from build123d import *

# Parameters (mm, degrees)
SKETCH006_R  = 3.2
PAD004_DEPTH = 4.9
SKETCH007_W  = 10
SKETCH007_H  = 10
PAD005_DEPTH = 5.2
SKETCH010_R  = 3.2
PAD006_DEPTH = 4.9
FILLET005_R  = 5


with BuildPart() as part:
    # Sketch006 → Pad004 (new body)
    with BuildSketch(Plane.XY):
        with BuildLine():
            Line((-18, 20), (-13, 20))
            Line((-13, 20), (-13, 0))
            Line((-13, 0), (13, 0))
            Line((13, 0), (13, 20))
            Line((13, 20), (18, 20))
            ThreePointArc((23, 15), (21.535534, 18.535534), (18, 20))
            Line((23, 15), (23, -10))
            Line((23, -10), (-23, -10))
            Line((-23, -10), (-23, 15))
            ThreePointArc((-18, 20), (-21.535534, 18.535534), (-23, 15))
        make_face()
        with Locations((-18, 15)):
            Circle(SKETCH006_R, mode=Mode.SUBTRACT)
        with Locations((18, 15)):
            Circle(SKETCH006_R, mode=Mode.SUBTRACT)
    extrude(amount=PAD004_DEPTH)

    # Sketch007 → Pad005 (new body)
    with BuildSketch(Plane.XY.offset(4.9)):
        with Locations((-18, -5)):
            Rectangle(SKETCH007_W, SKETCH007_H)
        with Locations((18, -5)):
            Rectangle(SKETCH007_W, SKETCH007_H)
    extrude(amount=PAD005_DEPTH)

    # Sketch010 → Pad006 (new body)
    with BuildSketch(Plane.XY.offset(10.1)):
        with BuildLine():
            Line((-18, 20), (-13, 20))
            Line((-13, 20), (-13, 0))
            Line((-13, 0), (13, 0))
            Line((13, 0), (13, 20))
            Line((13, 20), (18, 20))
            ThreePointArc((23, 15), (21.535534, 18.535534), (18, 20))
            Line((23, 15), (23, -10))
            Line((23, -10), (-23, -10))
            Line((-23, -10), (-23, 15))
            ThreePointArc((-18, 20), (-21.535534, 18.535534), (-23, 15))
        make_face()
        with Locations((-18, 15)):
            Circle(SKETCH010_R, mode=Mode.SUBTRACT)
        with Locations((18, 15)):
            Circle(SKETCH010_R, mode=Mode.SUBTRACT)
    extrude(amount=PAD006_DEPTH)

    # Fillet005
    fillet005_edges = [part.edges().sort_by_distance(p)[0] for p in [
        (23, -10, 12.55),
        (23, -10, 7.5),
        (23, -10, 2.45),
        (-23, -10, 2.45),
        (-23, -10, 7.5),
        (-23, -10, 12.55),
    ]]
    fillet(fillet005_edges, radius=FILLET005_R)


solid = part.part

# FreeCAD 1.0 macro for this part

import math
import FreeCAD as App
import Part
import Sketcher
Q = App.Units.Quantity


def edges_at(feature, points):
    """Names of the edges that pass closest to the given points."""
    edges = feature.Shape.Edges
    near = lambda p: min(range(len(edges)), key=lambda i: edges[i].distToShape(Part.Vertex(*p))[0])
    return sorted({f"Edge{near(p) + 1}" for p in points})

doc = App.newDocument("Part")
params = doc.addObject("Spreadsheet::Sheet", "Params")
for row, (alias, value) in enumerate([
    ("sketch1_radius", "5 mm"),
    ("sketch1_diameter", "6.4 mm"),
    ("sketch1_width", "5 mm"),
    ("sketch1_width2", "46 mm"),
    ("sketch1_height", "25 mm"),
    ("pad1_length", "4.9 mm"),
    ("sketch2_width", "10 mm"),
    ("pad2_length", "5.2 mm"),
    ("sketch3_radius", "5 mm"),
    ("sketch3_diameter", "6.4 mm"),
    ("sketch3_width", "5 mm"),
    ("sketch3_width2", "46 mm"),
    ("sketch3_height", "25 mm"),
    ("pad3_length", "4.9 mm"),
    ("fillet_radius", "5 mm"),
], start=1):
    params.set(f"A{row}", alias)
    params.set(f"B{row}", "=" + value)
    params.setAlias(f"B{row}", alias)

body = doc.addObject("PartDesign::Body", "Body")

# Sketch on XY plane
sketch1 = body.newObject("Sketcher::SketchObject", "Sketch")
sketch1.AttachmentSupport = (doc.getObject("XY_Plane"), [""])
sketch1.MapMode = "FlatFace"
sketch1.addGeometry(Part.LineSegment(App.Vector(-13, 20, 0), App.Vector(-18, 20, 0)), False)
sketch1.addGeometry(Part.ArcOfCircle(Part.Circle(App.Vector(-18, 15, 0), App.Vector(0, 0, 1), 5), math.radians(90), math.radians(180)), False)
sketch1.addGeometry(Part.LineSegment(App.Vector(-23, 15, 0), App.Vector(-23, -10, 0)), False)
sketch1.addGeometry(Part.LineSegment(App.Vector(-23, -10, 0), App.Vector(23, -10, 0)), False)
sketch1.addGeometry(Part.LineSegment(App.Vector(23, -10, 0), App.Vector(23, 15, 0)), False)
sketch1.addGeometry(Part.ArcOfCircle(Part.Circle(App.Vector(18, 15, 0), App.Vector(0, 0, 1), 5), math.radians(0), math.radians(90)), False)
sketch1.addGeometry(Part.LineSegment(App.Vector(18, 20, 0), App.Vector(13, 20, 0)), False)
sketch1.addGeometry(Part.LineSegment(App.Vector(13, 20, 0), App.Vector(13, 0, 0)), False)
sketch1.addGeometry(Part.LineSegment(App.Vector(13, 0, 0), App.Vector(-13, 0, 0)), False)
sketch1.addGeometry(Part.LineSegment(App.Vector(-13, 0, 0), App.Vector(-13, 20, 0)), False)
sketch1.addGeometry(Part.Circle(App.Vector(18, 15, 0), App.Vector(0, 0, 1), 3.2), False)
sketch1.addGeometry(Part.Circle(App.Vector(-18, 15, 0), App.Vector(0, 0, 1), 3.2), False)
sketch1.addConstraint(Sketcher.Constraint("Tangent", 0, 2, 1, 1))
sketch1.addConstraint(Sketcher.Constraint("Tangent", 1, 2, 2, 1))
sketch1.addConstraint(Sketcher.Constraint("Coincident", 2, 2, 3, 1))
sketch1.addConstraint(Sketcher.Constraint("Coincident", 3, 2, 4, 1))
sketch1.addConstraint(Sketcher.Constraint("Tangent", 4, 2, 5, 1))
sketch1.addConstraint(Sketcher.Constraint("Tangent", 5, 2, 6, 1))
sketch1.addConstraint(Sketcher.Constraint("Coincident", 6, 2, 7, 1))
sketch1.addConstraint(Sketcher.Constraint("Coincident", 7, 2, 8, 1))
sketch1.addConstraint(Sketcher.Constraint("Coincident", 8, 2, 9, 1))
sketch1.addConstraint(Sketcher.Constraint("Coincident", 9, 2, 0, 1))
sketch1.addConstraint(Sketcher.Constraint("Horizontal", 0))
sketch1.addConstraint(Sketcher.Constraint("Vertical", 2))
sketch1.addConstraint(Sketcher.Constraint("Horizontal", 3))
sketch1.addConstraint(Sketcher.Constraint("Vertical", 4))
sketch1.addConstraint(Sketcher.Constraint("Horizontal", 6))
sketch1.addConstraint(Sketcher.Constraint("Vertical", 7))
sketch1.addConstraint(Sketcher.Constraint("Horizontal", 8))
sketch1.addConstraint(Sketcher.Constraint("Vertical", 9))
sketch1.addConstraint(Sketcher.Constraint("Coincident", 10, 3, 5, 3))
sketch1.addConstraint(Sketcher.Constraint("Coincident", 11, 3, 1, 3))
sketch1.addConstraint(Sketcher.Constraint("Equal", 1, 5))
sketch1.addConstraint(Sketcher.Constraint("Equal", 10, 11))
sketch1.addConstraint(Sketcher.Constraint("Symmetric", 7, 2, 8, 2, -1, 1))
sketch1.addConstraint(Sketcher.Constraint("Symmetric", 1, 3, 5, 3, -2))
sketch1.addConstraint(Sketcher.Constraint("Radius", 1, Q("5 mm")))
sketch1.addConstraint(Sketcher.Constraint("Diameter", 10, Q("6.4 mm")))
sketch1.addConstraint(Sketcher.Constraint("DistanceX", 0, 2, 0, 1, Q("5 mm")))
sketch1.addConstraint(Sketcher.Constraint("DistanceX", 3, 1, 3, 2, Q("46 mm")))
sketch1.addConstraint(Sketcher.Constraint("DistanceY", 2, 2, 2, 1, Q("25 mm")))
sketch1.addConstraint(Sketcher.Constraint("DistanceY", 7, 2, 7, 1, Q("20 mm")))
sketch1.setExpression("Constraints[24]", "Params.sketch1_radius")
sketch1.setExpression("Constraints[25]", "Params.sketch1_diameter")
sketch1.setExpression("Constraints[26]", "Params.sketch1_width")
sketch1.setExpression("Constraints[27]", "Params.sketch1_width2")
sketch1.setExpression("Constraints[28]", "Params.sketch1_height")
pad1 = body.newObject("PartDesign::Pad", "Pad")
pad1.Profile = sketch1
pad1.setExpression("Length", "Params.pad1_length")

# Sketch on XY plane
sketch2 = body.newObject("Sketcher::SketchObject", "Sketch001")
sketch2.AttachmentSupport = (doc.getObject("XY_Plane"), [""])
sketch2.MapMode = "FlatFace"
sketch2.AttachmentOffset = App.Placement(App.Vector(0, 0, 4.9), App.Rotation())
sketch2.addGeometry(Part.LineSegment(App.Vector(-23, 0, 0), App.Vector(-23, -10, 0)), False)
sketch2.addGeometry(Part.LineSegment(App.Vector(-23, -10, 0), App.Vector(-13, -10, 0)), False)
sketch2.addGeometry(Part.LineSegment(App.Vector(-13, -10, 0), App.Vector(-13, 0, 0)), False)
sketch2.addGeometry(Part.LineSegment(App.Vector(-13, 0, 0), App.Vector(-23, 0, 0)), False)
sketch2.addGeometry(Part.LineSegment(App.Vector(13, 0, 0), App.Vector(13, -10, 0)), False)
sketch2.addGeometry(Part.LineSegment(App.Vector(13, -10, 0), App.Vector(23, -10, 0)), False)
sketch2.addGeometry(Part.LineSegment(App.Vector(23, -10, 0), App.Vector(23, 0, 0)), False)
sketch2.addGeometry(Part.LineSegment(App.Vector(23, 0, 0), App.Vector(13, 0, 0)), False)
sketch2.addConstraint(Sketcher.Constraint("Coincident", 0, 2, 1, 1))
sketch2.addConstraint(Sketcher.Constraint("Coincident", 1, 2, 2, 1))
sketch2.addConstraint(Sketcher.Constraint("Coincident", 2, 2, 3, 1))
sketch2.addConstraint(Sketcher.Constraint("Coincident", 3, 2, 0, 1))
sketch2.addConstraint(Sketcher.Constraint("Coincident", 4, 2, 5, 1))
sketch2.addConstraint(Sketcher.Constraint("Coincident", 5, 2, 6, 1))
sketch2.addConstraint(Sketcher.Constraint("Coincident", 6, 2, 7, 1))
sketch2.addConstraint(Sketcher.Constraint("Coincident", 7, 2, 4, 1))
sketch2.addConstraint(Sketcher.Constraint("Vertical", 0))
sketch2.addConstraint(Sketcher.Constraint("Horizontal", 1))
sketch2.addConstraint(Sketcher.Constraint("Vertical", 2))
sketch2.addConstraint(Sketcher.Constraint("Horizontal", 3))
sketch2.addConstraint(Sketcher.Constraint("Vertical", 4))
sketch2.addConstraint(Sketcher.Constraint("Horizontal", 5))
sketch2.addConstraint(Sketcher.Constraint("Vertical", 6))
sketch2.addConstraint(Sketcher.Constraint("Horizontal", 7))
sketch2.addConstraint(Sketcher.Constraint("Symmetric", 3, 2, 6, 2, -1, 1))
sketch2.addConstraint(Sketcher.Constraint("Symmetric", 1, 2, 4, 2, -2))
sketch2.addConstraint(Sketcher.Constraint("PointOnObject", 2, 2, -1))
sketch2.addConstraint(Sketcher.Constraint("Equal", 7, 0))
sketch2.addConstraint(Sketcher.Constraint("DistanceX", 1, 1, 1, 2, Q("10 mm")))
sketch2.addConstraint(Sketcher.Constraint("DistanceX", 0, 2, -1, 1, Q("23 mm")))
sketch2.setExpression("Constraints[20]", "Params.sketch2_width")
pad2 = body.newObject("PartDesign::Pad", "Pad001")
pad2.Profile = sketch2
pad2.setExpression("Length", "Params.pad2_length")

# Sketch on XY plane
sketch3 = body.newObject("Sketcher::SketchObject", "Sketch002")
sketch3.AttachmentSupport = (doc.getObject("XY_Plane"), [""])
sketch3.MapMode = "FlatFace"
sketch3.AttachmentOffset = App.Placement(App.Vector(0, 0, 10.1), App.Rotation())
sketch3.addGeometry(Part.LineSegment(App.Vector(-13, 20, 0), App.Vector(-18, 20, 0)), False)
sketch3.addGeometry(Part.ArcOfCircle(Part.Circle(App.Vector(-18, 15, 0), App.Vector(0, 0, 1), 5), math.radians(90), math.radians(180)), False)
sketch3.addGeometry(Part.LineSegment(App.Vector(-23, 15, 0), App.Vector(-23, -10, 0)), False)
sketch3.addGeometry(Part.LineSegment(App.Vector(-23, -10, 0), App.Vector(23, -10, 0)), False)
sketch3.addGeometry(Part.LineSegment(App.Vector(23, -10, 0), App.Vector(23, 15, 0)), False)
sketch3.addGeometry(Part.ArcOfCircle(Part.Circle(App.Vector(18, 15, 0), App.Vector(0, 0, 1), 5), math.radians(0), math.radians(90)), False)
sketch3.addGeometry(Part.LineSegment(App.Vector(18, 20, 0), App.Vector(13, 20, 0)), False)
sketch3.addGeometry(Part.LineSegment(App.Vector(13, 20, 0), App.Vector(13, 0, 0)), False)
sketch3.addGeometry(Part.LineSegment(App.Vector(13, 0, 0), App.Vector(-13, 0, 0)), False)
sketch3.addGeometry(Part.LineSegment(App.Vector(-13, 0, 0), App.Vector(-13, 20, 0)), False)
sketch3.addGeometry(Part.Circle(App.Vector(18, 15, 0), App.Vector(0, 0, 1), 3.2), False)
sketch3.addGeometry(Part.Circle(App.Vector(-18, 15, 0), App.Vector(0, 0, 1), 3.2), False)
sketch3.addConstraint(Sketcher.Constraint("Tangent", 0, 2, 1, 1))
sketch3.addConstraint(Sketcher.Constraint("Tangent", 1, 2, 2, 1))
sketch3.addConstraint(Sketcher.Constraint("Coincident", 2, 2, 3, 1))
sketch3.addConstraint(Sketcher.Constraint("Coincident", 3, 2, 4, 1))
sketch3.addConstraint(Sketcher.Constraint("Tangent", 4, 2, 5, 1))
sketch3.addConstraint(Sketcher.Constraint("Tangent", 5, 2, 6, 1))
sketch3.addConstraint(Sketcher.Constraint("Coincident", 6, 2, 7, 1))
sketch3.addConstraint(Sketcher.Constraint("Coincident", 7, 2, 8, 1))
sketch3.addConstraint(Sketcher.Constraint("Coincident", 8, 2, 9, 1))
sketch3.addConstraint(Sketcher.Constraint("Coincident", 9, 2, 0, 1))
sketch3.addConstraint(Sketcher.Constraint("Horizontal", 0))
sketch3.addConstraint(Sketcher.Constraint("Vertical", 2))
sketch3.addConstraint(Sketcher.Constraint("Horizontal", 3))
sketch3.addConstraint(Sketcher.Constraint("Vertical", 4))
sketch3.addConstraint(Sketcher.Constraint("Horizontal", 6))
sketch3.addConstraint(Sketcher.Constraint("Vertical", 7))
sketch3.addConstraint(Sketcher.Constraint("Horizontal", 8))
sketch3.addConstraint(Sketcher.Constraint("Vertical", 9))
sketch3.addConstraint(Sketcher.Constraint("Coincident", 10, 3, 5, 3))
sketch3.addConstraint(Sketcher.Constraint("Coincident", 11, 3, 1, 3))
sketch3.addConstraint(Sketcher.Constraint("Equal", 1, 5))
sketch3.addConstraint(Sketcher.Constraint("Equal", 10, 11))
sketch3.addConstraint(Sketcher.Constraint("Symmetric", 7, 2, 8, 2, -1, 1))
sketch3.addConstraint(Sketcher.Constraint("Symmetric", 1, 3, 5, 3, -2))
sketch3.addConstraint(Sketcher.Constraint("Radius", 1, Q("5 mm")))
sketch3.addConstraint(Sketcher.Constraint("Diameter", 10, Q("6.4 mm")))
sketch3.addConstraint(Sketcher.Constraint("DistanceX", 0, 2, 0, 1, Q("5 mm")))
sketch3.addConstraint(Sketcher.Constraint("DistanceX", 3, 1, 3, 2, Q("46 mm")))
sketch3.addConstraint(Sketcher.Constraint("DistanceY", 2, 2, 2, 1, Q("25 mm")))
sketch3.addConstraint(Sketcher.Constraint("DistanceY", 7, 2, 7, 1, Q("20 mm")))
sketch3.setExpression("Constraints[24]", "Params.sketch3_radius")
sketch3.setExpression("Constraints[25]", "Params.sketch3_diameter")
sketch3.setExpression("Constraints[26]", "Params.sketch3_width")
sketch3.setExpression("Constraints[27]", "Params.sketch3_width2")
sketch3.setExpression("Constraints[28]", "Params.sketch3_height")
pad3 = body.newObject("PartDesign::Pad", "Pad002")
pad3.Profile = sketch3
pad3.setExpression("Length", "Params.pad3_length")
doc.recompute()

fillet = body.newObject("PartDesign::Fillet", "Fillet")
fillet.Base = (pad3, edges_at(pad3, [
    (23, -10, 7.5),
    (23, -10, 7.5),
    (23, -10, 7.5),
    (-23, -10, 7.5),
    (-23, -10, 7.5),
    (-23, -10, 7.5),
]))
fillet.setExpression("Radius", "Params.fillet_radius")

doc.recompute()
